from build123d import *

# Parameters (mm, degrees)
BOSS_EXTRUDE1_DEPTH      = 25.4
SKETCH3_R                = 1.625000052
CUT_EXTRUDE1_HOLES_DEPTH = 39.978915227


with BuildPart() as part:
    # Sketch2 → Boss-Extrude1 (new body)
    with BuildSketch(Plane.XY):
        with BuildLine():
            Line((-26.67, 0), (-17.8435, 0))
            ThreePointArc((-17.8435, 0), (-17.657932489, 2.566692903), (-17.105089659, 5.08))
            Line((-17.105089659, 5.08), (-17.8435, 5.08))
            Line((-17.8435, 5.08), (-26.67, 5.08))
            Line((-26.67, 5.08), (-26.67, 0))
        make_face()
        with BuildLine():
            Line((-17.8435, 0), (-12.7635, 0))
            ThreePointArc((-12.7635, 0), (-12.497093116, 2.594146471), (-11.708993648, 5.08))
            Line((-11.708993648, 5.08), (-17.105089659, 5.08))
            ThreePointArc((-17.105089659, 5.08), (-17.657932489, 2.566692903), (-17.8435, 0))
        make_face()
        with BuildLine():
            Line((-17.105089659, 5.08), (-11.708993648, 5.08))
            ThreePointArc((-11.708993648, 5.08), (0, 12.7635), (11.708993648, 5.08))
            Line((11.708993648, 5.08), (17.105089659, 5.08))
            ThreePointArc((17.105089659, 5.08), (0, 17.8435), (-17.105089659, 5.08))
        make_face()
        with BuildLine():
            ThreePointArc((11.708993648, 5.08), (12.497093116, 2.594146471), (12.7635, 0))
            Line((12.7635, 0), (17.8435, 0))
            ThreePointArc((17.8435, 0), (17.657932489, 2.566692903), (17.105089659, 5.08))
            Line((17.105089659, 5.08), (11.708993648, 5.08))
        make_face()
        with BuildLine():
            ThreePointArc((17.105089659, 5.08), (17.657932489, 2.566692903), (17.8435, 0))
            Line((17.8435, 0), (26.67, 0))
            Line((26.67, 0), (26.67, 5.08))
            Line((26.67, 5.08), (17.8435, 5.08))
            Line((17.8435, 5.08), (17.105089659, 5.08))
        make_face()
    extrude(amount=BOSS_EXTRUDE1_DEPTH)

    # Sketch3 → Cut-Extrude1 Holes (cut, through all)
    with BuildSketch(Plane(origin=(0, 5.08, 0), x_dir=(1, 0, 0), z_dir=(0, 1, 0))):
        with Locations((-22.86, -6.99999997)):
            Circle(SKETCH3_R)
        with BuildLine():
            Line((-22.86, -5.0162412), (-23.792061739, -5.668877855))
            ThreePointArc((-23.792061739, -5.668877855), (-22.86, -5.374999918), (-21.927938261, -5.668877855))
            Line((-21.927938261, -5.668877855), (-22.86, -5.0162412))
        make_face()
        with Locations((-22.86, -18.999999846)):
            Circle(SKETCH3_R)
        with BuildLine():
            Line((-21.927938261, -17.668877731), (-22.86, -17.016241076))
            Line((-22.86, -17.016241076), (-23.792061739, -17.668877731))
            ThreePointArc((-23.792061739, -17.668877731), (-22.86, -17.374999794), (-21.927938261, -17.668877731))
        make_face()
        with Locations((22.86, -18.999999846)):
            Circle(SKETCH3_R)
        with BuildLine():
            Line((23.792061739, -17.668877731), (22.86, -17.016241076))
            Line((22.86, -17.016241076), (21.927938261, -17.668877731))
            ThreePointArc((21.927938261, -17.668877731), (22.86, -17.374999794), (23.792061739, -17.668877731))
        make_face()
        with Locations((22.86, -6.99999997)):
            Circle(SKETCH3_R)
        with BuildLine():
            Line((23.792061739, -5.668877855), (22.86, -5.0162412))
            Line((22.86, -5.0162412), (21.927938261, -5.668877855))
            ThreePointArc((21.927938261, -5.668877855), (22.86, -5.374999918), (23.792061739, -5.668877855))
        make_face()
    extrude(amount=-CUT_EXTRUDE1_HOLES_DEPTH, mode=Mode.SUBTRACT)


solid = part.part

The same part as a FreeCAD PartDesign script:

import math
import FreeCAD as App
import Part
import Sketcher
Q = App.Units.Quantity

doc = App.newDocument("Part")
body = doc.addObject("PartDesign::Body", "Body")

# Sketch on XY plane
sketch1 = doc.addObject("Sketcher::SketchObject", "Sketch")
body.addObject(sketch1)
sketch1.AttachmentSupport = (doc.XY_Plane, [""])
sketch1.MapMode = "FlatFace"
sketch1.addGeometry(Part.LineSegment(App.Vector(-27, 0, 0), App.Vector(-13, 0, 0)), False)
sketch1.addGeometry(Part.ArcOfCircle(Part.Circle(App.Vector(0, 0, 0), App.Vector(0, 0, 1), 13), math.radians(157), math.radians(180)), False)
sketch1.addGeometry(Part.ArcOfCircle(Part.Circle(App.Vector(0, 0, 0), App.Vector(0, 0, 1), 13), math.radians(23), math.radians(157)), False)
sketch1.addGeometry(Part.ArcOfCircle(Part.Circle(App.Vector(0, 0, 0), App.Vector(0, 0, 1), 13), math.radians(0), math.radians(23)), False)
sketch1.addGeometry(Part.LineSegment(App.Vector(13, 0, 0), App.Vector(27, 0, 0)), False)
sketch1.addGeometry(Part.LineSegment(App.Vector(27, 0, 0), App.Vector(27, 5, 0)), False)
sketch1.addGeometry(Part.LineSegment(App.Vector(27, 5, 0), App.Vector(17, 5, 0)), False)
sketch1.addGeometry(Part.ArcOfCircle(Part.Circle(App.Vector(0, 0, 0), App.Vector(0, 0, 1), 18), math.radians(17), math.radians(163)), False)
sketch1.addGeometry(Part.LineSegment(App.Vector(-17, 5, 0), App.Vector(-27, 5, 0)), False)
sketch1.addGeometry(Part.LineSegment(App.Vector(-27, 5, 0), App.Vector(-27, 0, 0)), False)
sketch1.addConstraint(Sketcher.Constraint("Coincident", 0, 2, 1, 2))
sketch1.addConstraint(Sketcher.Constraint("Tangent", 1, 1, 2, 2))
sketch1.addConstraint(Sketcher.Constraint("Tangent", 2, 1, 3, 2))
sketch1.addConstraint(Sketcher.Constraint("Coincident", 3, 1, 4, 1))
sketch1.addConstraint(Sketcher.Constraint("Coincident", 4, 2, 5, 1))
sketch1.addConstraint(Sketcher.Constraint("Coincident", 5, 2, 6, 1))
sketch1.addConstraint(Sketcher.Constraint("Coincident", 6, 2, 7, 1))
sketch1.addConstraint(Sketcher.Constraint("Coincident", 7, 2, 8, 1))
sketch1.addConstraint(Sketcher.Constraint("Coincident", 8, 2, 9, 1))
sketch1.addConstraint(Sketcher.Constraint("Coincident", 9, 2, 0, 1))
sketch1.addConstraint(Sketcher.Constraint("Horizontal", 0))
sketch1.addConstraint(Sketcher.Constraint("Horizontal", 4))
sketch1.addConstraint(Sketcher.Constraint("Vertical", 5))
sketch1.addConstraint(Sketcher.Constraint("Horizontal", 6))
sketch1.addConstraint(Sketcher.Constraint("Horizontal", 8))
sketch1.addConstraint(Sketcher.Constraint("Vertical", 9))
sketch1.addConstraint(Sketcher.Constraint("Coincident", 1, 3, -1, 1))
sketch1.addConstraint(Sketcher.Constraint("Coincident", 3, 3, -1, 1))
sketch1.addConstraint(Sketcher.Constraint("Coincident", 7, 3, -1, 1))
sketch1.addConstraint(Sketcher.Constraint("Symmetric", 4, 2, 9, 2, -1, 1))
sketch1.addConstraint(Sketcher.Constraint("PointOnObject", 0, 2, -1))
sketch1.addConstraint(Sketcher.Constraint("Horizontal", 1, 1, 2, 1))
sketch1.addConstraint(Sketcher.Constraint("Horizontal", 2, 1, 5, 2))
sketch1.addConstraint(Sketcher.Constraint("Horizontal", 6, 2, 7, 2))
sketch1.addConstraint(Sketcher.Constraint("DistanceY", 5, 1, 5, 2, Q("0.2 in")))
sketch1.addConstraint(Sketcher.Constraint("Radius", 1, Q("0.5025 in")))
sketch1.addConstraint(Sketcher.Constraint("Radius", 7, Q("0.7025 in")))
sketch1.addConstraint(Sketcher.Constraint("DistanceX", -1, 1, 4, 2, Q("1.05 in")))
pad1 = doc.addObject("PartDesign::Pad", "Pad")
body.addObject(pad1)
pad1.Profile = sketch1
pad1.Length = Q("1 in")

# Sketch on XZ plane
sketch2 = doc.addObject("Sketcher::SketchObject", "Sketch001")
body.addObject(sketch2)
sketch2.AttachmentSupport = (doc.XZ_Plane, [""])
sketch2.MapMode = "FlatFace"
sketch2.AttachmentOffset = App.Placement(App.Vector(0, 0, -0.2 * 25.4), App.Rotation())
sketch2.addGeometry(Part.LineSegment(App.Vector(-21.9, 5.7, 0), App.Vector(-22.9, 5, 0)), False)
sketch2.addGeometry(Part.LineSegment(App.Vector(-22.9, 5, 0), App.Vector(-23.8, 5.7, 0)), False)
sketch2.addGeometry(Part.ArcOfCircle(Part.Circle(App.Vector(-22.9, 7, 0), App.Vector(0, 0, 1), 1.6), math.radians(-55), math.radians(235)), False)
sketch2.addGeometry(Part.LineSegment(App.Vector(-21.9, 17.7, 0), App.Vector(-22.9, 17, 0)), False)
sketch2.addGeometry(Part.LineSegment(App.Vector(-22.9, 17, 0), App.Vector(-23.8, 17.7, 0)), False)
sketch2.addGeometry(Part.ArcOfCircle(Part.Circle(App.Vector(-22.9, 19, 0), App.Vector(0, 0, 1), 1.6), math.radians(-55), math.radians(235)), False)
sketch2.addGeometry(Part.LineSegment(App.Vector(23.8, 17.7, 0), App.Vector(22.9, 17, 0)), False)
sketch2.addGeometry(Part.LineSegment(App.Vector(22.9, 17, 0), App.Vector(21.9, 17.7, 0)), False)
sketch2.addGeometry(Part.ArcOfCircle(Part.Circle(App.Vector(22.9, 19, 0), App.Vector(0, 0, 1), 1.6), math.radians(-55), math.radians(235)), False)
sketch2.addGeometry(Part.LineSegment(App.Vector(23.8, 5.7, 0), App.Vector(22.9, 5, 0)), False)
sketch2.addGeometry(Part.LineSegment(App.Vector(22.9, 5, 0), App.Vector(21.9, 5.7, 0)), False)
sketch2.addGeometry(Part.ArcOfCircle(Part.Circle(App.Vector(22.9, 7, 0), App.Vector(0, 0, 1), 1.6), math.radians(-55), math.radians(235)), False)
sketch2.addConstraint(Sketcher.Constraint("Coincident", 0, 2, 1, 1))
sketch2.addConstraint(Sketcher.Constraint("Tangent", 1, 2, 2, 2))
sketch2.addConstraint(Sketcher.Constraint("Tangent", 2, 1, 0, 1))
sketch2.addConstraint(Sketcher.Constraint("Coincident", 3, 2, 4, 1))
sketch2.addConstraint(Sketcher.Constraint("Tangent", 4, 2, 5, 2))
sketch2.addConstraint(Sketcher.Constraint("Tangent", 5, 1, 3, 1))
sketch2.addConstraint(Sketcher.Constraint("Coincident", 6, 2, 7, 1))
sketch2.addConstraint(Sketcher.Constraint("Tangent", 7, 2, 8, 2))
sketch2.addConstraint(Sketcher.Constraint("Tangent", 8, 1, 6, 1))
sketch2.addConstraint(Sketcher.Constraint("Coincident", 9, 2, 10, 1))
sketch2.addConstraint(Sketcher.Constraint("Tangent", 10, 2, 11, 2))
sketch2.addConstraint(Sketcher.Constraint("Tangent", 11, 1, 9, 1))
sketch2.addConstraint(Sketcher.Constraint("Equal", 2, 5))
sketch2.addConstraint(Sketcher.Constraint("Equal", 5, 8))
sketch2.addConstraint(Sketcher.Constraint("Equal", 8, 11))
sketch2.addConstraint(Sketcher.Constraint("Symmetric", 5, 3, 8, 3, -2))
sketch2.addConstraint(Sketcher.Constraint("Symmetric", 2, 3, 11, 3, -2))
sketch2.addConstraint(Sketcher.Constraint("Symmetric", 3, 2, 6, 2, -2))
sketch2.addConstraint(Sketcher.Constraint("Symmetric", 0, 2, 9, 2, -2))
sketch2.addConstraint(Sketcher.Constraint("Parallel", 0, 3))
sketch2.addConstraint(Sketcher.Constraint("Parallel", 1, 4))
sketch2.addConstraint(Sketcher.Constraint("Parallel", 3, 6))
sketch2.addConstraint(Sketcher.Constraint("Vertical", 2, 3, 5, 3))
sketch2.addConstraint(Sketcher.Constraint("Angle", 0, Q("-145 deg")))
sketch2.addConstraint(Sketcher.Constraint("DistanceX", 2, 3, -1, 1, Q("0.9 in")))
sketch2.addConstraint(Sketcher.Constraint("Radius", 2, Q("1.625 mm")))
sketch2.addConstraint(Sketcher.Constraint("DistanceY", -1, 1, 2, 3, Q("7 mm")))
sketch2.addConstraint(Sketcher.Constraint("DistanceY", -1, 1, 5, 3, Q("19 mm")))
pocket1 = doc.addObject("PartDesign::Pocket", "Pocket")
body.addObject(pocket1)
pocket1.Profile = sketch2
pocket1.Type = "ThroughAll"
pocket1.Reversed = True

doc.recompute()
